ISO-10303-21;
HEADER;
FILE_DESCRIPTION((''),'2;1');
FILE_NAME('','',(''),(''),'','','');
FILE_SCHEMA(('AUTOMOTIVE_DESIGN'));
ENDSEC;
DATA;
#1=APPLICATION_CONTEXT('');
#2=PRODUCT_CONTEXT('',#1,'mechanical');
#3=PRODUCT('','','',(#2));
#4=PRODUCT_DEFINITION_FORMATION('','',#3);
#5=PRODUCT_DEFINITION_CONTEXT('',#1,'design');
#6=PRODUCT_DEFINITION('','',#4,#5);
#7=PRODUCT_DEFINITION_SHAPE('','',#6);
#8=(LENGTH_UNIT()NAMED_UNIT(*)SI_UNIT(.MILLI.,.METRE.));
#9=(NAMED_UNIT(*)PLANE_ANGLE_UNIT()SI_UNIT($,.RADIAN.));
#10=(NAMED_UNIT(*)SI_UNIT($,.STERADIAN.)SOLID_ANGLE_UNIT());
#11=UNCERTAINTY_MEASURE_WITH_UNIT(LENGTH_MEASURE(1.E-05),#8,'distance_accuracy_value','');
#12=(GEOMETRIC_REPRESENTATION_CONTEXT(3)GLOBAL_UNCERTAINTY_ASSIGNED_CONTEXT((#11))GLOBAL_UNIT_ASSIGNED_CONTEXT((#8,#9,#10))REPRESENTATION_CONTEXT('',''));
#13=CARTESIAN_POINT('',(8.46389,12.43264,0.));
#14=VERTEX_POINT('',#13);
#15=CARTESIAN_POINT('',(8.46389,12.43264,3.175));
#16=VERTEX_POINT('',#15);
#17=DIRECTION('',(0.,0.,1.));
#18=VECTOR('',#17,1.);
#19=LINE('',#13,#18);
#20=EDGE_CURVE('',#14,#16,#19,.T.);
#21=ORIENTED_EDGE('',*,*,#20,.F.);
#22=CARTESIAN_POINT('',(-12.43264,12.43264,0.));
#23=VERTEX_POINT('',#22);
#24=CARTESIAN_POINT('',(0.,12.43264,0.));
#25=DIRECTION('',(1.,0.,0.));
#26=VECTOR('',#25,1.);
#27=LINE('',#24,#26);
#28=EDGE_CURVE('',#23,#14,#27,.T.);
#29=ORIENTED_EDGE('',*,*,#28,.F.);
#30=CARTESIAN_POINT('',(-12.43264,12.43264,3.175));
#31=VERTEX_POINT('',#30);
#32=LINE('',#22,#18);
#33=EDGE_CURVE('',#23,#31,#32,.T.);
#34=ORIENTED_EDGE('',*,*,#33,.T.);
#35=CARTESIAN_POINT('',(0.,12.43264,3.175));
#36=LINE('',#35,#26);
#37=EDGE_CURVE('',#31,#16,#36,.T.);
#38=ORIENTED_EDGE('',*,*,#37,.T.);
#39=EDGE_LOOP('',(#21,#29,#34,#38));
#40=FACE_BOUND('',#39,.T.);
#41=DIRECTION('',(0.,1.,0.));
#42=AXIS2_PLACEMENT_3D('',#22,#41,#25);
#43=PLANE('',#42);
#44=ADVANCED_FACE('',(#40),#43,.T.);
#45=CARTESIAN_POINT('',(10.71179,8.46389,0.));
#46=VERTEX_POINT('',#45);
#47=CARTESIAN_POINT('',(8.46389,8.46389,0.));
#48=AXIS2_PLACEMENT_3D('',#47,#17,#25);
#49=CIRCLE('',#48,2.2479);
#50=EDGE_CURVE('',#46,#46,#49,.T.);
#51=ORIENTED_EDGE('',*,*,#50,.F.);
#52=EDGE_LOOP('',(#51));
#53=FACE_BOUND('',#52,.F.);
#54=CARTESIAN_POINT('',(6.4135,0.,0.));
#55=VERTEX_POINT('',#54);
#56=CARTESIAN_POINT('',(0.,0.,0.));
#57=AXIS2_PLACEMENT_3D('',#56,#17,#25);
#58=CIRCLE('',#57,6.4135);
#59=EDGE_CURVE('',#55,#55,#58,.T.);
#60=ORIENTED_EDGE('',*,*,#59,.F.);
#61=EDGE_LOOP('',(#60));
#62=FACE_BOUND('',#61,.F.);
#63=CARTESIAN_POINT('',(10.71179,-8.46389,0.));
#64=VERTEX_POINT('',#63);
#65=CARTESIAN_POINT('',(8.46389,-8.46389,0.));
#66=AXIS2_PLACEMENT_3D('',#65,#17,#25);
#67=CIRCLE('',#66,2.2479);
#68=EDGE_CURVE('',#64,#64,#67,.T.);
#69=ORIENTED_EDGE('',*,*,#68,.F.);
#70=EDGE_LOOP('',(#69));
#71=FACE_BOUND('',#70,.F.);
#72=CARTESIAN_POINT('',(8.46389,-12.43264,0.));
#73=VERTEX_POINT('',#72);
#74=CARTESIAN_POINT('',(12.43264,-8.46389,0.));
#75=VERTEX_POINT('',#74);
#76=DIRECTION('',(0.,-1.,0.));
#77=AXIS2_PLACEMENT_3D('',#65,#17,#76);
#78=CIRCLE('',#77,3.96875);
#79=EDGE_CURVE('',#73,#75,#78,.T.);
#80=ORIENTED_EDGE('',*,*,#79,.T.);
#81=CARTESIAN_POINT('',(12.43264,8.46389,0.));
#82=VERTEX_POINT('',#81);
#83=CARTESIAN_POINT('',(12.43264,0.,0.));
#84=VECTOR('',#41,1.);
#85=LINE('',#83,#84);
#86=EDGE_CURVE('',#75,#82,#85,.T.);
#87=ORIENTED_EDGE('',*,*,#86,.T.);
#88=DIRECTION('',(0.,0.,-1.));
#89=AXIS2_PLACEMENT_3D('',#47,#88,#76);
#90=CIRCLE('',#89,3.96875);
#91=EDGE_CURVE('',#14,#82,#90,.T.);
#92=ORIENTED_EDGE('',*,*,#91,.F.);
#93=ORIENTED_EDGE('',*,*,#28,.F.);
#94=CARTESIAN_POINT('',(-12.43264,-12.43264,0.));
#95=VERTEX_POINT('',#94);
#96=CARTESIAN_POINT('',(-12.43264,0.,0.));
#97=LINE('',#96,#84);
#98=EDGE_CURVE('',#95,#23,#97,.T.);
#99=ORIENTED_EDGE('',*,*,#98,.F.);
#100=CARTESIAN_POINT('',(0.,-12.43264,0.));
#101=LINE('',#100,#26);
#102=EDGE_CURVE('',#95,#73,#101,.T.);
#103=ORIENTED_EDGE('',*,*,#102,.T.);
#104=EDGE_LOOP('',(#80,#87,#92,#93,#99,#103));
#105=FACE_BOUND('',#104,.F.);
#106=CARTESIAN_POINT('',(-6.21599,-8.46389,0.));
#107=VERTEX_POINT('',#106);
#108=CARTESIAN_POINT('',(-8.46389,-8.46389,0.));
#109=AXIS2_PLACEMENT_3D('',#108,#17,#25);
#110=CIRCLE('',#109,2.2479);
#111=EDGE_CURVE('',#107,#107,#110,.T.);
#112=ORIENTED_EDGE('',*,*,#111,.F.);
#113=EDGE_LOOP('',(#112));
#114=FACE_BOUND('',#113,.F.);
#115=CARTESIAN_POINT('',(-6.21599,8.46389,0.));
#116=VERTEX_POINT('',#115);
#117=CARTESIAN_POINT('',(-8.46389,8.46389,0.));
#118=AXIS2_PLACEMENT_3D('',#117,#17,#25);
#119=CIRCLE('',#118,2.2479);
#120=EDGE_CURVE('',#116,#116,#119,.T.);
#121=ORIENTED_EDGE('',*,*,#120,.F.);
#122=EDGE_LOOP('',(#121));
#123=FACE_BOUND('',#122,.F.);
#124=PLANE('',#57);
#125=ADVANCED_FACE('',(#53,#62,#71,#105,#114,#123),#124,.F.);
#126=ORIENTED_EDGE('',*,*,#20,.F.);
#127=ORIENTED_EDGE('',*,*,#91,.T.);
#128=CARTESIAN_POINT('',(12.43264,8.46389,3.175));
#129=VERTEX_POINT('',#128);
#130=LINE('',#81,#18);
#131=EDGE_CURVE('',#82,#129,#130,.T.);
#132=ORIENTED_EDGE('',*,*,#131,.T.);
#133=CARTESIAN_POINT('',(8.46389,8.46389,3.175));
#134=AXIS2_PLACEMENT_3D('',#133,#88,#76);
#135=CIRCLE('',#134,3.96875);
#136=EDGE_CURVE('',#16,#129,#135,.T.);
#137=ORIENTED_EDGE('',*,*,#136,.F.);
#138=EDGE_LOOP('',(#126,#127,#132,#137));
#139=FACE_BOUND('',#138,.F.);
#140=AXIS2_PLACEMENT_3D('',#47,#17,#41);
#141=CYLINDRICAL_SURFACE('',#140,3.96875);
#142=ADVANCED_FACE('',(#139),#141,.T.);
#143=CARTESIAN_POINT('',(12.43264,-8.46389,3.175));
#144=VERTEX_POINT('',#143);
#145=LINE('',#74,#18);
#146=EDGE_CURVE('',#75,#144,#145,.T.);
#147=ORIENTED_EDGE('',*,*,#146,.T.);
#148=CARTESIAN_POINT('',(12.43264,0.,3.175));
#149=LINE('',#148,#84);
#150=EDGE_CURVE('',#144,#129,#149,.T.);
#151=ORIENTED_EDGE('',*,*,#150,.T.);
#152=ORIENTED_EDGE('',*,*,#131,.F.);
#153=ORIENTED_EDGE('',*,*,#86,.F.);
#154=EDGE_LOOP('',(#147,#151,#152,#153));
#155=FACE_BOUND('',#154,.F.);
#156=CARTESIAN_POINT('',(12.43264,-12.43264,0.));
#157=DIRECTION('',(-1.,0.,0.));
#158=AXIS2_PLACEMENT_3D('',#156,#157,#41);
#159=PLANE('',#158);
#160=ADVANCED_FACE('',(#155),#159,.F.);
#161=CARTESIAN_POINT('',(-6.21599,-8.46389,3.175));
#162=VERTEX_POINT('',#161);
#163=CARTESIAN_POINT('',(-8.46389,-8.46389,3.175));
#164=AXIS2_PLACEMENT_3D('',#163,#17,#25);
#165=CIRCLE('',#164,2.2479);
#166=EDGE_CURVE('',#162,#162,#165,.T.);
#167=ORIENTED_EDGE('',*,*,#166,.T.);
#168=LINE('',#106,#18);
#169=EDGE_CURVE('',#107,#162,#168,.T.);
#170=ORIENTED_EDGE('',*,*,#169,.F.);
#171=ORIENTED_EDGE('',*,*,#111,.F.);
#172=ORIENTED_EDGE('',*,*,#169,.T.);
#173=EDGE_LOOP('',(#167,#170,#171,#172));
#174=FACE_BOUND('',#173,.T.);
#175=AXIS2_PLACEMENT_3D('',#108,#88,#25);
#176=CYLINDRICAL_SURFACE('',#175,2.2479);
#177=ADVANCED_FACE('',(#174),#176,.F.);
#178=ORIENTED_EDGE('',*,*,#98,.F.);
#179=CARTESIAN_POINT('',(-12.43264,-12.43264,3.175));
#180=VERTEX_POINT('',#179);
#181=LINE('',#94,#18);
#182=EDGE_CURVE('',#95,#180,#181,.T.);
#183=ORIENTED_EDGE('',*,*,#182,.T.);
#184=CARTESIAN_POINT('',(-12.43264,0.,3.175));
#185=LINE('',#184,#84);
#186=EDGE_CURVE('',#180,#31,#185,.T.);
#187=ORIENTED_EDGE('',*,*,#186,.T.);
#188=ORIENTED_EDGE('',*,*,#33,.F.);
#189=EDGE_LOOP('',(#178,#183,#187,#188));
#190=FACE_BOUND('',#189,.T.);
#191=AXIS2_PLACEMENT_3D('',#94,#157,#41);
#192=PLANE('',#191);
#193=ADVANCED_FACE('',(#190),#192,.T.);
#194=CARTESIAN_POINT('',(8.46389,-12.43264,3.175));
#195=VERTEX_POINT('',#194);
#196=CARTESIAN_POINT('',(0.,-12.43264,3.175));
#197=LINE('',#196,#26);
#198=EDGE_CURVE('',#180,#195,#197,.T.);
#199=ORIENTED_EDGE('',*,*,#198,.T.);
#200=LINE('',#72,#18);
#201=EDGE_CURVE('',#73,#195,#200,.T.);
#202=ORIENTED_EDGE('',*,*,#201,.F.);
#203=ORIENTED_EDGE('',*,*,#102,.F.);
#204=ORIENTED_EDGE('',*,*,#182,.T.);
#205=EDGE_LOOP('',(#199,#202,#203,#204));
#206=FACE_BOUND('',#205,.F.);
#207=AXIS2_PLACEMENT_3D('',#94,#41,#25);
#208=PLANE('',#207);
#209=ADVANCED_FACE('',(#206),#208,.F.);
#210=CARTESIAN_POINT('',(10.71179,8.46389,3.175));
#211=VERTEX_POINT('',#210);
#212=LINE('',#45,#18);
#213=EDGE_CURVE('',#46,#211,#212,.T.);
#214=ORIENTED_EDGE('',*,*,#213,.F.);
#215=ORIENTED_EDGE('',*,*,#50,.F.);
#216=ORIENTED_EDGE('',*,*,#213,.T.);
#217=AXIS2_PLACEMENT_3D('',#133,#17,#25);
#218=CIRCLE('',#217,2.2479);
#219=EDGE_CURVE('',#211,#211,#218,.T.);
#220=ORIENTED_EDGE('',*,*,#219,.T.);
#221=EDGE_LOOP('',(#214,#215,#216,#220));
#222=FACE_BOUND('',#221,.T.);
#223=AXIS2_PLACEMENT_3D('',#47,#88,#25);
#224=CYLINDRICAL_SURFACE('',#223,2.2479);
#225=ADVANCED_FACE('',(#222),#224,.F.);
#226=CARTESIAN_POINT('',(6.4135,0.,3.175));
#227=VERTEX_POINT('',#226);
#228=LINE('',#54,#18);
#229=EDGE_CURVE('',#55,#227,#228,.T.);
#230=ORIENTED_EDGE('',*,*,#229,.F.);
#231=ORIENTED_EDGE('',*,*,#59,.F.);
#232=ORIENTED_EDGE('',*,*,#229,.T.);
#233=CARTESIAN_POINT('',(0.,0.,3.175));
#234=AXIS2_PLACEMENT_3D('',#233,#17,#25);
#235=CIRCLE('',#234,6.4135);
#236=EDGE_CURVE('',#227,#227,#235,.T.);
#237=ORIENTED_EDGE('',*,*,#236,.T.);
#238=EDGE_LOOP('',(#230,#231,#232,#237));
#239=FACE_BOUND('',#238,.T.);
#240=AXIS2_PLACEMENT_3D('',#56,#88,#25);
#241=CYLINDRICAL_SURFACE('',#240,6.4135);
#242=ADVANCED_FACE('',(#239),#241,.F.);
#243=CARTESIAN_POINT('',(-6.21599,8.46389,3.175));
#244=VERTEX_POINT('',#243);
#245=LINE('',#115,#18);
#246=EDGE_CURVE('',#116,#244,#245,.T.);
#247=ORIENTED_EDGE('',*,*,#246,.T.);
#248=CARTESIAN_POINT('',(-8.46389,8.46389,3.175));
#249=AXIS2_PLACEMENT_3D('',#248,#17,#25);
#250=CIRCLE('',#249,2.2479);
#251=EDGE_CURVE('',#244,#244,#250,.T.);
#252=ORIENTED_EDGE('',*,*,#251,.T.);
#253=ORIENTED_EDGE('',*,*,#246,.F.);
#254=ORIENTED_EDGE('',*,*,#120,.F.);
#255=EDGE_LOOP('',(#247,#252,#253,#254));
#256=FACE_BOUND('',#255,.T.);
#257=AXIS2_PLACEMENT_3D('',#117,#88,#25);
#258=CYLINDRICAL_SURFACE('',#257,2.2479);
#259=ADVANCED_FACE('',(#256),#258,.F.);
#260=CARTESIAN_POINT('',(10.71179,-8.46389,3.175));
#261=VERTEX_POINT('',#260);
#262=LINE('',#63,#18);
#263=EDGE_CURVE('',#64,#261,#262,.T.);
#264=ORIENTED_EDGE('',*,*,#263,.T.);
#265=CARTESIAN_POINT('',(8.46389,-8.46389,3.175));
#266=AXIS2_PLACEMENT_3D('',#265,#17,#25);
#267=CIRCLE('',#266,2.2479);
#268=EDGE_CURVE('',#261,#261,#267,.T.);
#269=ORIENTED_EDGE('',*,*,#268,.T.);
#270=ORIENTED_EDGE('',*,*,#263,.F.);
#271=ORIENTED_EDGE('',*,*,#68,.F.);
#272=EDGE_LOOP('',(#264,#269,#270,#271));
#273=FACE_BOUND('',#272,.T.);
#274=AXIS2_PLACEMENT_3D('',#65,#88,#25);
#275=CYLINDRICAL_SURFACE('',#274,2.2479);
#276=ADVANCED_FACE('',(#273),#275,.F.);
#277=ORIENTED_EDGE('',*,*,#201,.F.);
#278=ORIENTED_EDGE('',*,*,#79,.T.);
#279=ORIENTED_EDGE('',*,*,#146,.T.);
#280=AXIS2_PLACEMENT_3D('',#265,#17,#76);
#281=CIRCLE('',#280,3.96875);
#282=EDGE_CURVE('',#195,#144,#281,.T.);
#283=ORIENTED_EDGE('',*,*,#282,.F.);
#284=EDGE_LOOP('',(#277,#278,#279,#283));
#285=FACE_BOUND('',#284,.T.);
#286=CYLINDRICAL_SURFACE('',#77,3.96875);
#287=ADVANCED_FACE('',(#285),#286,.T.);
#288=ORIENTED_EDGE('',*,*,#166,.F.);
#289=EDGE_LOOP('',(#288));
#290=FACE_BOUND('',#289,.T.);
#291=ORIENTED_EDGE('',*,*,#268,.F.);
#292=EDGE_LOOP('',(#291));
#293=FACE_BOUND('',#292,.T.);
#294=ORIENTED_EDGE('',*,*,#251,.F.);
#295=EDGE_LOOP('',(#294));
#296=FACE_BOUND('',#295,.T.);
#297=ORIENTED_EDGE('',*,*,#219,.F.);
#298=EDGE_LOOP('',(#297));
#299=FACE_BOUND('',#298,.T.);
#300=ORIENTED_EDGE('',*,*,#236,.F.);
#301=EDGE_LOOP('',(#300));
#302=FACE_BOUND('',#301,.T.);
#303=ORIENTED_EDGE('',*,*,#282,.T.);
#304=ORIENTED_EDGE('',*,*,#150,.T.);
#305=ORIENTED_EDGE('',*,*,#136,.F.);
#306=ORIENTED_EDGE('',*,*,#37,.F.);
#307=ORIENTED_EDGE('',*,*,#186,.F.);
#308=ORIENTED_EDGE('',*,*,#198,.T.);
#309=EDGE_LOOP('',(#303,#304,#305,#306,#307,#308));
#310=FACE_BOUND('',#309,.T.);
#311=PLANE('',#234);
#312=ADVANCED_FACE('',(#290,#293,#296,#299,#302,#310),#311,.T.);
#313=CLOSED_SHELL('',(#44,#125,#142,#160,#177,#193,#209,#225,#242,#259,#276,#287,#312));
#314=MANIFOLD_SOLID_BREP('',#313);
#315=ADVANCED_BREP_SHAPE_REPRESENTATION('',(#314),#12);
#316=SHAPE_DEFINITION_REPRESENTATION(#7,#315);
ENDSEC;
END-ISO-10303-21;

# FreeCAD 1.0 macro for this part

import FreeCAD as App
import Part
import Sketcher
Q = App.Units.Quantity


def edges_at(feature, points):
    """Names of the edges that pass closest to the given points."""
    edges = feature.Shape.Edges
    near = lambda p: min(range(len(edges)), key=lambda i: edges[i].distToShape(Part.Vertex(*p))[0])
    return sorted({f"Edge{near(p) + 1}" for p in points})


def add_polygon(sketch, points):
    """Adds a closed chain of lines whose ends are joined by coincident constraints."""
    first, n = sketch.GeometryCount, len(points)
    for a, b in zip(points, points[1:] + points[:1]):
        sketch.addGeometry(Part.LineSegment(App.Vector(*a, 0), App.Vector(*b, 0)), False)
    for i in range(n):
        sketch.addConstraint(Sketcher.Constraint("Coincident", first + i, 2, first + (i + 1) % n, 1))

doc = App.newDocument("Part")
params = doc.addObject("Spreadsheet::Sheet", "Params")
for row, (alias, value) in enumerate([
    ("sketch1_diameter", "0.177 in"),
    ("sketch1_diameter2", "0.505 in"),
    ("pad1_length", "0.125 in"),
    ("fillet_radius", "0.15625 in"),
], start=1):
    params.set(f"A{row}", alias)
    params.set(f"B{row}", "=" + value)
    params.setAlias(f"B{row}", alias)

body = doc.addObject("PartDesign::Body", "Body")

# Sketch on XY plane
sketch1 = doc.addObject("Sketcher::SketchObject", "Sketch")
body.addObject(sketch1)
sketch1.AttachmentSupport = (doc.XY_Plane, [""])
sketch1.MapMode = "FlatFace"
add_polygon(sketch1, [(-12.43264, 12.43264), (-12.43264, -12.43264), (12.43264, -12.43264), (12.43264, 12.43264)])  # lines 0-3
sketch1.addGeometry(Part.Circle(App.Vector(-8.46389, -8.46389, 0), App.Vector(0, 0, 1), 2.2479), False)  # 4
sketch1.addGeometry(Part.Circle(App.Vector(8.46389, -8.46389, 0), App.Vector(0, 0, 1), 2.2479), False)  # 5
sketch1.addGeometry(Part.Circle(App.Vector(-8.46389, 8.46389, 0), App.Vector(0, 0, 1), 2.2479), False)  # 6
sketch1.addGeometry(Part.Circle(App.Vector(0, 0, 0), App.Vector(0, 0, 1), 6.4135), False)  # 7
sketch1.addGeometry(Part.Circle(App.Vector(8.46389, 8.46389, 0), App.Vector(0, 0, 1), 2.2479), False)  # 8
sketch1.addConstraint([
    Sketcher.Constraint("Vertical", 0),
    Sketcher.Constraint("Horizontal", 1),
    Sketcher.Constraint("Vertical", 2),
    Sketcher.Constraint("Horizontal", 3),
    Sketcher.Constraint("Coincident", 7, 3, -1, 1),
    Sketcher.Constraint("Equal", 4, 5),
    Sketcher.Constraint("Equal", 5, 6),
    Sketcher.Constraint("Equal", 6, 8),
    Sketcher.Constraint("Symmetric", 5, 3, 6, 3, -1, 1),
    Sketcher.Constraint("Symmetric", 4, 3, 8, 3, -1, 1),
    Sketcher.Constraint("Symmetric", 0, 2, 2, 2, -1, 1),
    Sketcher.Constraint("Symmetric", 4, 3, 5, 3, -2),
    Sketcher.Constraint("Equal", 3, 0),
    Sketcher.Constraint("Diameter", 4, Q("0.177 in")),
    Sketcher.Constraint("Diameter", 7, Q("0.505 in")),
    Sketcher.Constraint("DistanceX", 0, 2, 4, 3, Q("0.15625 in")),
    Sketcher.Constraint("DistanceY", 0, 2, 4, 3, Q("0.15625 in")),
    Sketcher.Constraint("DistanceX", 1, 1, 1, 2, 24.86528),
])
sketch1.setExpression("Constraints[17]", "Params.sketch1_diameter")
sketch1.setExpression("Constraints[18]", "Params.sketch1_diameter2")
pad1 = doc.addObject("PartDesign::Pad", "Pad")
body.addObject(pad1)
pad1.Profile = sketch1
pad1.setExpression("Length", "Params.pad1_length")
doc.recompute()

fillet = doc.addObject("PartDesign::Fillet", "Fillet")
body.addObject(fillet)
fillet.Base = (pad1, edges_at(pad1, [(12.433, -12.433, 1.587), (12.433, 12.433, 1.587)]))
fillet.setExpression("Radius", "Params.fillet_radius")

doc.recompute()
